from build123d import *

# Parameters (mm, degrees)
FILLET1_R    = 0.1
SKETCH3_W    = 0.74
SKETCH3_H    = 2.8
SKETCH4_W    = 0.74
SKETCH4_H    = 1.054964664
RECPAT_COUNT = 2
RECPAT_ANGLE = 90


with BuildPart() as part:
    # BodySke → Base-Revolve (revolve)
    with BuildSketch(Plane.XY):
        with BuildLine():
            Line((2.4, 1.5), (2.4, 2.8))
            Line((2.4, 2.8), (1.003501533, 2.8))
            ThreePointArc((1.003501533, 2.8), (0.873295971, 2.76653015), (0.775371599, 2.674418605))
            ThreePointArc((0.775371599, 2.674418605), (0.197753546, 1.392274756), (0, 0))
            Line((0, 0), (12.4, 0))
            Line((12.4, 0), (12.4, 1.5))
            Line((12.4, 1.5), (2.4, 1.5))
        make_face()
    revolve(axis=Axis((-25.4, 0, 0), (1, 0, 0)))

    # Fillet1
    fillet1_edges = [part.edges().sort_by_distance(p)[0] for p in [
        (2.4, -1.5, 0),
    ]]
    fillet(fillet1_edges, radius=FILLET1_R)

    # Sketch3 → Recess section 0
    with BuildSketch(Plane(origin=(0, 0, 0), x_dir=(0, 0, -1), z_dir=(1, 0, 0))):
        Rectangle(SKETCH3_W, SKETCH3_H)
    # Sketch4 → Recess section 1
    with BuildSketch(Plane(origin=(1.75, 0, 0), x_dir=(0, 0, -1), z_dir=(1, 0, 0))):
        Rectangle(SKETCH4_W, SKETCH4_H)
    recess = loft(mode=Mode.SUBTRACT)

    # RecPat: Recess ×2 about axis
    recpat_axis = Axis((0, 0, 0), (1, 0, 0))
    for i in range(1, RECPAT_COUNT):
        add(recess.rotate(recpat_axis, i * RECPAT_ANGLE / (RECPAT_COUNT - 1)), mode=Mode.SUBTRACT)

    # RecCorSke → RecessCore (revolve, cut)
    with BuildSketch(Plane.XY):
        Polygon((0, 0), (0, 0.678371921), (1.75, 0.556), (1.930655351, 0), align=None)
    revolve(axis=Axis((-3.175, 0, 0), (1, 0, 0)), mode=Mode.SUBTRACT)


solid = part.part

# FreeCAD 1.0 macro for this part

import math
import FreeCAD as App
import Part
import Sketcher
from FreeCAD import Vector
Q = App.Units.Quantity


def edges_at(feature, points):
    """Names of the edges that pass closest to the given points."""
    edges = feature.Shape.Edges
    near = lambda p: min(range(len(edges)), key=lambda i: edges[i].distToShape(Part.Vertex(*p))[0])
    return sorted({f"Edge{near(p) + 1}" for p in points})

doc = App.newDocument("Part")
body = doc.addObject("PartDesign::Body", "Body")

sketch1 = body.newObject("Sketcher::SketchObject", "Sketch")
sketch1.AttachmentSupport = (doc.getObject("XY_Plane"), [""])
sketch1.MapMode = "FlatFace"
sketch1.addGeometry([
    Part.LineSegment(Vector(2.4, 1.5, 0), Vector(2.4, 2.8, 0)),
    Part.LineSegment(Vector(2.4, 2.8, 0), Vector(1.003502, 2.8, 0)),
    Part.ArcOfCircle(Part.Circle(Vector(1.003502, 2.53, 0), Vector(0, 0, 1), 0.27), math.radians(90), math.radians(147.663974)),
    Part.ArcOfCircle(Part.Circle(Vector(5, 0, 0), Vector(0, 0, 1), 5), math.radians(147.663974), math.radians(180)),
    Part.LineSegment(Vector(0, 0, 0), Vector(12.4, 0, 0)),
    Part.LineSegment(Vector(12.4, 0, 0), Vector(12.4, 1.5, 0)),
    Part.LineSegment(Vector(12.4, 1.5, 0), Vector(2.4, 1.5, 0)),
], False)
sketch1.addConstraint([
    Sketcher.Constraint("Coincident", 0, 2, 1, 1),
    Sketcher.Constraint("Tangent", 1, 2, 2, 1),
    Sketcher.Constraint("Tangent", 2, 2, 3, 1),
    Sketcher.Constraint("Coincident", 3, 2, 4, 1),
    Sketcher.Constraint("Coincident", 4, 2, 5, 1),
    Sketcher.Constraint("Coincident", 5, 2, 6, 1),
    Sketcher.Constraint("Coincident", 6, 2, 0, 1),
    Sketcher.Constraint("Vertical", 0),
    Sketcher.Constraint("Horizontal", 1),
    Sketcher.Constraint("Horizontal", 4),
    Sketcher.Constraint("Vertical", 5),
    Sketcher.Constraint("Horizontal", 6),
    Sketcher.Constraint("Coincident", 3, 2, -1, 1),
    Sketcher.Constraint("PointOnObject", 3, 3, -1),
    Sketcher.Constraint("Radius", 3, 5.0),
    Sketcher.Constraint("DistanceX", 6, 2, 6, 1, 10.0),
    Sketcher.Constraint("Radius", 2, 0.27),
    Sketcher.Constraint("DistanceX", 4, 1, 4, 2, 12.4),
    Sketcher.Constraint("DistanceY", 0, 1, 0, 2, 1.3),
    Sketcher.Constraint("DistanceY", 5, 1, 5, 2, 1.5),
])
revolution = body.newObject("PartDesign::Revolution", "Revolution")
revolution.Profile = sketch1
revolution.ReferenceAxis = (sketch1, ["H_Axis"])
revolution.Angle = 360
doc.recompute()

fillet = body.newObject("PartDesign::Fillet", "Fillet")
fillet.Base = (revolution, edges_at(revolution, [(2.4, -1.5, 0)]))
fillet.Radius = 0.1

sketch2 = body.newObject("Sketcher::SketchObject", "Sketch001")
sketch2.AttachmentSupport = (doc.getObject("YZ_Plane"), [""])
sketch2.MapMode = "FlatFace"
sketch2.addGeometry([
    Part.LineSegment(Vector(1.4, 0.37, 0), Vector(-1.4, 0.37, 0)),
    Part.LineSegment(Vector(-1.4, 0.37, 0), Vector(-1.4, -0.37, 0)),
    Part.LineSegment(Vector(-1.4, -0.37, 0), Vector(1.4, -0.37, 0)),
    Part.LineSegment(Vector(1.4, -0.37, 0), Vector(1.4, 0.37, 0)),
], False)
sketch2.addConstraint([
    Sketcher.Constraint("Coincident", 0, 2, 1, 1),
    Sketcher.Constraint("Coincident", 1, 2, 2, 1),
    Sketcher.Constraint("Coincident", 2, 2, 3, 1),
    Sketcher.Constraint("Coincident", 3, 2, 0, 1),
    Sketcher.Constraint("Horizontal", 0),
    Sketcher.Constraint("Vertical", 1),
    Sketcher.Constraint("Horizontal", 2),
    Sketcher.Constraint("Vertical", 3),
    Sketcher.Constraint("Symmetric", 0, 2, 2, 2, -1, 1),
    Sketcher.Constraint("DistanceX", 0, 2, 0, 1, 2.8),
    Sketcher.Constraint("DistanceY", 1, 2, 1, 1, 0.74),
])

sketch3 = body.newObject("Sketcher::SketchObject", "Sketch002")
sketch3.AttachmentSupport = (doc.getObject("YZ_Plane"), [""])
sketch3.MapMode = "FlatFace"
sketch3.AttachmentOffset = App.Placement(Vector(0, 0, 1.75), App.Rotation())
sketch3.addGeometry([
    Part.LineSegment(Vector(0.527482, 0.37, 0), Vector(-0.527482, 0.37, 0)),
    Part.LineSegment(Vector(-0.527482, 0.37, 0), Vector(-0.527482, -0.37, 0)),
    Part.LineSegment(Vector(-0.527482, -0.37, 0), Vector(0.527482, -0.37, 0)),
    Part.LineSegment(Vector(0.527482, -0.37, 0), Vector(0.527482, 0.37, 0)),
], False)
sketch3.addConstraint([
    Sketcher.Constraint("Coincident", 0, 2, 1, 1),
    Sketcher.Constraint("Coincident", 1, 2, 2, 1),
    Sketcher.Constraint("Coincident", 2, 2, 3, 1),
    Sketcher.Constraint("Coincident", 3, 2, 0, 1),
    Sketcher.Constraint("Horizontal", 0),
    Sketcher.Constraint("Vertical", 1),
    Sketcher.Constraint("Horizontal", 2),
    Sketcher.Constraint("Vertical", 3),
    Sketcher.Constraint("Symmetric", 0, 2, 2, 2, -1, 1),
    Sketcher.Constraint("DistanceY", 1, 2, 1, 1, 0.74),
    Sketcher.Constraint("DistanceX", 0, 2, 0, 1, 1.054965),
])

subtractiveloft = body.newObject("PartDesign::SubtractiveLoft", "SubtractiveLoft")
subtractiveloft.Profile = sketch2
subtractiveloft.Sections = [sketch3]
doc.recompute()

polarpattern = body.newObject("PartDesign::PolarPattern", "PolarPattern")
polarpattern.Originals = [subtractiveloft]
polarpattern.Axis = (doc.getObject("X_Axis"), [""])
polarpattern.Angle = 90
polarpattern.Occurrences = 2
body.Tip = polarpattern

sketch4 = body.newObject("Sketcher::SketchObject", "Sketch003")
sketch4.AttachmentSupport = (doc.getObject("XY_Plane"), [""])
sketch4.MapMode = "FlatFace"
sketch4.addGeometry([
    Part.LineSegment(Vector(0, 0.678372, 0), Vector(0, 0, 0)),
    Part.LineSegment(Vector(0, 0, 0), Vector(1.930655, 0, 0)),
    Part.LineSegment(Vector(1.930655, 0, 0), Vector(1.75, 0.556, 0)),
    Part.LineSegment(Vector(1.75, 0.556, 0), Vector(0, 0.678372, 0)),
], False)
sketch4.addConstraint([
    Sketcher.Constraint("Coincident", 0, 2, 1, 1),
    Sketcher.Constraint("Coincident", 1, 2, 2, 1),
    Sketcher.Constraint("Coincident", 2, 2, 3, 1),
    Sketcher.Constraint("Coincident", 3, 2, 0, 1),
    Sketcher.Constraint("Vertical", 0),
    Sketcher.Constraint("Horizontal", 1),
    Sketcher.Constraint("Coincident", 0, 2, -1, 1),
    Sketcher.Constraint("Angle", 2, Q("108 deg")),
    Sketcher.Constraint("Angle", 3, Q("176 deg")),
    Sketcher.Constraint("DistanceX", -1, 1, 2, 2, 1.75),
    Sketcher.Constraint("DistanceY", -1, 1, 2, 2, 0.556),
])
groove = body.newObject("PartDesign::Groove", "Groove")
groove.Profile = sketch4
groove.ReferenceAxis = (sketch4, ["H_Axis"])
groove.Angle = 360

doc.recompute()
